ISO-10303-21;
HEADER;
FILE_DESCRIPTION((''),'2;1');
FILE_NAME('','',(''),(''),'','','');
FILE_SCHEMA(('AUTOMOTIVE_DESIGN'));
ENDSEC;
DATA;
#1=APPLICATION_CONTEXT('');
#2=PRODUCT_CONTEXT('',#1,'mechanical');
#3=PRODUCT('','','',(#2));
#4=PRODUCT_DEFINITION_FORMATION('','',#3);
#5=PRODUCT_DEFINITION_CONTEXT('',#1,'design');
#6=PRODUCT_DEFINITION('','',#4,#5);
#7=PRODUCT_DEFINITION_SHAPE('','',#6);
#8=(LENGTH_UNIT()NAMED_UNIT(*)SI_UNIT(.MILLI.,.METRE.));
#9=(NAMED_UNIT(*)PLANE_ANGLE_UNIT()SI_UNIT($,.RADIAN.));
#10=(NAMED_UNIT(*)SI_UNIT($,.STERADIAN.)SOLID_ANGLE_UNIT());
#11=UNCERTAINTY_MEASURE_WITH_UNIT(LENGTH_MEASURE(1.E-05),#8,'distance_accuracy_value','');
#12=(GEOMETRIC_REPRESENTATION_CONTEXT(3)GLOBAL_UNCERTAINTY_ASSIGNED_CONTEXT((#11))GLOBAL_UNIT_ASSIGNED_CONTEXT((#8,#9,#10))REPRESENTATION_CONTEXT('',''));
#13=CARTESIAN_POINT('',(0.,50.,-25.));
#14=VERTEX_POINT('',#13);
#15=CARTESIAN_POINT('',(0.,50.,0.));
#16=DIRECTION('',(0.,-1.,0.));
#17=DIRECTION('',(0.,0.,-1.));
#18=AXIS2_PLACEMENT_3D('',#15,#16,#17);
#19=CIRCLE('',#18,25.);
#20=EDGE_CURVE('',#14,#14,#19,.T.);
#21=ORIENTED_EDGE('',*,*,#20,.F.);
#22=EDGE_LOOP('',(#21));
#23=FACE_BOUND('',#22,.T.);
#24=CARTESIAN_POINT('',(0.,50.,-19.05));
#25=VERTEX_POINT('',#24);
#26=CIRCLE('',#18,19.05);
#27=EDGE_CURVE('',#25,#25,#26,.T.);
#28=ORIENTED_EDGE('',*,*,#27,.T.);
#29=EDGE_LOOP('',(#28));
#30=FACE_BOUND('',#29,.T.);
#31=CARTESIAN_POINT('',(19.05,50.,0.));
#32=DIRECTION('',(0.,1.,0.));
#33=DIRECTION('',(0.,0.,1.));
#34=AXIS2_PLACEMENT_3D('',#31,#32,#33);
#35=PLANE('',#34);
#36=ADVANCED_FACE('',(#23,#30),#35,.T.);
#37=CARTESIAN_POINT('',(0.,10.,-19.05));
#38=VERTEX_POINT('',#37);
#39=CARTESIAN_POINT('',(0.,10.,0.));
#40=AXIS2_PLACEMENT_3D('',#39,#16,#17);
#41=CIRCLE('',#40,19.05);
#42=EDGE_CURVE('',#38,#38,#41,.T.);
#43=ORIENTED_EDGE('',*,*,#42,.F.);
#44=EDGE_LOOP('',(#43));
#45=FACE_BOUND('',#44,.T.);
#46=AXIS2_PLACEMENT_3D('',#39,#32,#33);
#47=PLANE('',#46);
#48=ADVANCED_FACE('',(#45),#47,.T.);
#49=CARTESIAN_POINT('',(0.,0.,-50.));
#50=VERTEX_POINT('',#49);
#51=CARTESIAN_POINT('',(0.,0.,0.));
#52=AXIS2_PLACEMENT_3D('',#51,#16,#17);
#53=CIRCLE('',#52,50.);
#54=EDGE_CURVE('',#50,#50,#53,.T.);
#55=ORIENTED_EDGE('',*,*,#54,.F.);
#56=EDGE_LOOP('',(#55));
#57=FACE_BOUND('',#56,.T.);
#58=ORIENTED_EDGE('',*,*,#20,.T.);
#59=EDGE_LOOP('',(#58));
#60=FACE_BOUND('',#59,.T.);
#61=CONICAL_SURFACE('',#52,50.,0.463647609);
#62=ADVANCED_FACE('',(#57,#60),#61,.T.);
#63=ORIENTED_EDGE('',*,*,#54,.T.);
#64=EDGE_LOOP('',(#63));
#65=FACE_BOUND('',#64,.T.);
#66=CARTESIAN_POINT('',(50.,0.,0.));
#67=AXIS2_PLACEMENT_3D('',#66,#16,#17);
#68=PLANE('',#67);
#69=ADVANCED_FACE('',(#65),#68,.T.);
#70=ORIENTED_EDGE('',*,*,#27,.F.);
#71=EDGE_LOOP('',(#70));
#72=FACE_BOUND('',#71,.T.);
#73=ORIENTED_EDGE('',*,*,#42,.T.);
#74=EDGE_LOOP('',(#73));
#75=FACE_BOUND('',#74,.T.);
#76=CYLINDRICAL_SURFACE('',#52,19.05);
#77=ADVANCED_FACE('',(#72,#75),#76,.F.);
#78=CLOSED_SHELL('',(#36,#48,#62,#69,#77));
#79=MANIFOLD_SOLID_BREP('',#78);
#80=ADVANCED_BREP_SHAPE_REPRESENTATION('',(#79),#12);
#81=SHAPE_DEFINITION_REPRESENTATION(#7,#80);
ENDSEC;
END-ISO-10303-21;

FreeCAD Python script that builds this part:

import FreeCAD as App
import Part
import Sketcher

doc = App.newDocument("Part")
body = doc.addObject("PartDesign::Body", "Body")

# Sketch on XY plane
sketch1 = body.newObject("Sketcher::SketchObject", "Sketch")
sketch1.AttachmentSupport = (doc.getObject("XY_Plane"), [""])
sketch1.MapMode = "FlatFace"
sketch1.addGeometry([
    Part.LineSegment(App.Vector(25, 50, 0), App.Vector(19, 50, 0)),  # 0
    Part.LineSegment(App.Vector(19, 50, 0), App.Vector(19, 10, 0)),  # 1
    Part.LineSegment(App.Vector(19, 10, 0), App.Vector(0, 10, 0)),  # 2
    Part.LineSegment(App.Vector(0, 10, 0), App.Vector(0, 0, 0)),  # 3
    Part.LineSegment(App.Vector(0, 0, 0), App.Vector(50, 0, 0)),  # 4
    Part.LineSegment(App.Vector(50, 0, 0), App.Vector(25, 50, 0)),  # 5
], False)
sketch1.addConstraint([
    Sketcher.Constraint("Coincident", 0, 2, 1, 1),
    Sketcher.Constraint("Coincident", 1, 2, 2, 1),
    Sketcher.Constraint("Coincident", 2, 2, 3, 1),
    Sketcher.Constraint("Coincident", 3, 2, 4, 1),
    Sketcher.Constraint("Coincident", 4, 2, 5, 1),
    Sketcher.Constraint("Coincident", 5, 2, 0, 1),
    Sketcher.Constraint("Horizontal", 0),
    Sketcher.Constraint("Vertical", 1),
    Sketcher.Constraint("Horizontal", 2),
    Sketcher.Constraint("Vertical", 3),
    Sketcher.Constraint("Horizontal", 4),
    Sketcher.Constraint("Coincident", 3, 2, -1, 1),
    Sketcher.Constraint("DistanceX", 4, 1, 4, 2, 50.0),
    Sketcher.Constraint("DistanceY", 1, 2, 1, 1, 40.0),
    Sketcher.Constraint("DistanceY", 3, 2, 3, 1, 10.0),
    Sketcher.Constraint("DistanceX", -1, 1, 5, 2, 25.0),
    Sketcher.Constraint("DistanceX", 0, 2, 0, 1, 5.95),
])
revolution = body.newObject("PartDesign::Revolution", "Revolution")
revolution.Profile = sketch1
revolution.ReferenceAxis = (sketch1, ["V_Axis"])
revolution.Angle = 360

doc.recompute()
